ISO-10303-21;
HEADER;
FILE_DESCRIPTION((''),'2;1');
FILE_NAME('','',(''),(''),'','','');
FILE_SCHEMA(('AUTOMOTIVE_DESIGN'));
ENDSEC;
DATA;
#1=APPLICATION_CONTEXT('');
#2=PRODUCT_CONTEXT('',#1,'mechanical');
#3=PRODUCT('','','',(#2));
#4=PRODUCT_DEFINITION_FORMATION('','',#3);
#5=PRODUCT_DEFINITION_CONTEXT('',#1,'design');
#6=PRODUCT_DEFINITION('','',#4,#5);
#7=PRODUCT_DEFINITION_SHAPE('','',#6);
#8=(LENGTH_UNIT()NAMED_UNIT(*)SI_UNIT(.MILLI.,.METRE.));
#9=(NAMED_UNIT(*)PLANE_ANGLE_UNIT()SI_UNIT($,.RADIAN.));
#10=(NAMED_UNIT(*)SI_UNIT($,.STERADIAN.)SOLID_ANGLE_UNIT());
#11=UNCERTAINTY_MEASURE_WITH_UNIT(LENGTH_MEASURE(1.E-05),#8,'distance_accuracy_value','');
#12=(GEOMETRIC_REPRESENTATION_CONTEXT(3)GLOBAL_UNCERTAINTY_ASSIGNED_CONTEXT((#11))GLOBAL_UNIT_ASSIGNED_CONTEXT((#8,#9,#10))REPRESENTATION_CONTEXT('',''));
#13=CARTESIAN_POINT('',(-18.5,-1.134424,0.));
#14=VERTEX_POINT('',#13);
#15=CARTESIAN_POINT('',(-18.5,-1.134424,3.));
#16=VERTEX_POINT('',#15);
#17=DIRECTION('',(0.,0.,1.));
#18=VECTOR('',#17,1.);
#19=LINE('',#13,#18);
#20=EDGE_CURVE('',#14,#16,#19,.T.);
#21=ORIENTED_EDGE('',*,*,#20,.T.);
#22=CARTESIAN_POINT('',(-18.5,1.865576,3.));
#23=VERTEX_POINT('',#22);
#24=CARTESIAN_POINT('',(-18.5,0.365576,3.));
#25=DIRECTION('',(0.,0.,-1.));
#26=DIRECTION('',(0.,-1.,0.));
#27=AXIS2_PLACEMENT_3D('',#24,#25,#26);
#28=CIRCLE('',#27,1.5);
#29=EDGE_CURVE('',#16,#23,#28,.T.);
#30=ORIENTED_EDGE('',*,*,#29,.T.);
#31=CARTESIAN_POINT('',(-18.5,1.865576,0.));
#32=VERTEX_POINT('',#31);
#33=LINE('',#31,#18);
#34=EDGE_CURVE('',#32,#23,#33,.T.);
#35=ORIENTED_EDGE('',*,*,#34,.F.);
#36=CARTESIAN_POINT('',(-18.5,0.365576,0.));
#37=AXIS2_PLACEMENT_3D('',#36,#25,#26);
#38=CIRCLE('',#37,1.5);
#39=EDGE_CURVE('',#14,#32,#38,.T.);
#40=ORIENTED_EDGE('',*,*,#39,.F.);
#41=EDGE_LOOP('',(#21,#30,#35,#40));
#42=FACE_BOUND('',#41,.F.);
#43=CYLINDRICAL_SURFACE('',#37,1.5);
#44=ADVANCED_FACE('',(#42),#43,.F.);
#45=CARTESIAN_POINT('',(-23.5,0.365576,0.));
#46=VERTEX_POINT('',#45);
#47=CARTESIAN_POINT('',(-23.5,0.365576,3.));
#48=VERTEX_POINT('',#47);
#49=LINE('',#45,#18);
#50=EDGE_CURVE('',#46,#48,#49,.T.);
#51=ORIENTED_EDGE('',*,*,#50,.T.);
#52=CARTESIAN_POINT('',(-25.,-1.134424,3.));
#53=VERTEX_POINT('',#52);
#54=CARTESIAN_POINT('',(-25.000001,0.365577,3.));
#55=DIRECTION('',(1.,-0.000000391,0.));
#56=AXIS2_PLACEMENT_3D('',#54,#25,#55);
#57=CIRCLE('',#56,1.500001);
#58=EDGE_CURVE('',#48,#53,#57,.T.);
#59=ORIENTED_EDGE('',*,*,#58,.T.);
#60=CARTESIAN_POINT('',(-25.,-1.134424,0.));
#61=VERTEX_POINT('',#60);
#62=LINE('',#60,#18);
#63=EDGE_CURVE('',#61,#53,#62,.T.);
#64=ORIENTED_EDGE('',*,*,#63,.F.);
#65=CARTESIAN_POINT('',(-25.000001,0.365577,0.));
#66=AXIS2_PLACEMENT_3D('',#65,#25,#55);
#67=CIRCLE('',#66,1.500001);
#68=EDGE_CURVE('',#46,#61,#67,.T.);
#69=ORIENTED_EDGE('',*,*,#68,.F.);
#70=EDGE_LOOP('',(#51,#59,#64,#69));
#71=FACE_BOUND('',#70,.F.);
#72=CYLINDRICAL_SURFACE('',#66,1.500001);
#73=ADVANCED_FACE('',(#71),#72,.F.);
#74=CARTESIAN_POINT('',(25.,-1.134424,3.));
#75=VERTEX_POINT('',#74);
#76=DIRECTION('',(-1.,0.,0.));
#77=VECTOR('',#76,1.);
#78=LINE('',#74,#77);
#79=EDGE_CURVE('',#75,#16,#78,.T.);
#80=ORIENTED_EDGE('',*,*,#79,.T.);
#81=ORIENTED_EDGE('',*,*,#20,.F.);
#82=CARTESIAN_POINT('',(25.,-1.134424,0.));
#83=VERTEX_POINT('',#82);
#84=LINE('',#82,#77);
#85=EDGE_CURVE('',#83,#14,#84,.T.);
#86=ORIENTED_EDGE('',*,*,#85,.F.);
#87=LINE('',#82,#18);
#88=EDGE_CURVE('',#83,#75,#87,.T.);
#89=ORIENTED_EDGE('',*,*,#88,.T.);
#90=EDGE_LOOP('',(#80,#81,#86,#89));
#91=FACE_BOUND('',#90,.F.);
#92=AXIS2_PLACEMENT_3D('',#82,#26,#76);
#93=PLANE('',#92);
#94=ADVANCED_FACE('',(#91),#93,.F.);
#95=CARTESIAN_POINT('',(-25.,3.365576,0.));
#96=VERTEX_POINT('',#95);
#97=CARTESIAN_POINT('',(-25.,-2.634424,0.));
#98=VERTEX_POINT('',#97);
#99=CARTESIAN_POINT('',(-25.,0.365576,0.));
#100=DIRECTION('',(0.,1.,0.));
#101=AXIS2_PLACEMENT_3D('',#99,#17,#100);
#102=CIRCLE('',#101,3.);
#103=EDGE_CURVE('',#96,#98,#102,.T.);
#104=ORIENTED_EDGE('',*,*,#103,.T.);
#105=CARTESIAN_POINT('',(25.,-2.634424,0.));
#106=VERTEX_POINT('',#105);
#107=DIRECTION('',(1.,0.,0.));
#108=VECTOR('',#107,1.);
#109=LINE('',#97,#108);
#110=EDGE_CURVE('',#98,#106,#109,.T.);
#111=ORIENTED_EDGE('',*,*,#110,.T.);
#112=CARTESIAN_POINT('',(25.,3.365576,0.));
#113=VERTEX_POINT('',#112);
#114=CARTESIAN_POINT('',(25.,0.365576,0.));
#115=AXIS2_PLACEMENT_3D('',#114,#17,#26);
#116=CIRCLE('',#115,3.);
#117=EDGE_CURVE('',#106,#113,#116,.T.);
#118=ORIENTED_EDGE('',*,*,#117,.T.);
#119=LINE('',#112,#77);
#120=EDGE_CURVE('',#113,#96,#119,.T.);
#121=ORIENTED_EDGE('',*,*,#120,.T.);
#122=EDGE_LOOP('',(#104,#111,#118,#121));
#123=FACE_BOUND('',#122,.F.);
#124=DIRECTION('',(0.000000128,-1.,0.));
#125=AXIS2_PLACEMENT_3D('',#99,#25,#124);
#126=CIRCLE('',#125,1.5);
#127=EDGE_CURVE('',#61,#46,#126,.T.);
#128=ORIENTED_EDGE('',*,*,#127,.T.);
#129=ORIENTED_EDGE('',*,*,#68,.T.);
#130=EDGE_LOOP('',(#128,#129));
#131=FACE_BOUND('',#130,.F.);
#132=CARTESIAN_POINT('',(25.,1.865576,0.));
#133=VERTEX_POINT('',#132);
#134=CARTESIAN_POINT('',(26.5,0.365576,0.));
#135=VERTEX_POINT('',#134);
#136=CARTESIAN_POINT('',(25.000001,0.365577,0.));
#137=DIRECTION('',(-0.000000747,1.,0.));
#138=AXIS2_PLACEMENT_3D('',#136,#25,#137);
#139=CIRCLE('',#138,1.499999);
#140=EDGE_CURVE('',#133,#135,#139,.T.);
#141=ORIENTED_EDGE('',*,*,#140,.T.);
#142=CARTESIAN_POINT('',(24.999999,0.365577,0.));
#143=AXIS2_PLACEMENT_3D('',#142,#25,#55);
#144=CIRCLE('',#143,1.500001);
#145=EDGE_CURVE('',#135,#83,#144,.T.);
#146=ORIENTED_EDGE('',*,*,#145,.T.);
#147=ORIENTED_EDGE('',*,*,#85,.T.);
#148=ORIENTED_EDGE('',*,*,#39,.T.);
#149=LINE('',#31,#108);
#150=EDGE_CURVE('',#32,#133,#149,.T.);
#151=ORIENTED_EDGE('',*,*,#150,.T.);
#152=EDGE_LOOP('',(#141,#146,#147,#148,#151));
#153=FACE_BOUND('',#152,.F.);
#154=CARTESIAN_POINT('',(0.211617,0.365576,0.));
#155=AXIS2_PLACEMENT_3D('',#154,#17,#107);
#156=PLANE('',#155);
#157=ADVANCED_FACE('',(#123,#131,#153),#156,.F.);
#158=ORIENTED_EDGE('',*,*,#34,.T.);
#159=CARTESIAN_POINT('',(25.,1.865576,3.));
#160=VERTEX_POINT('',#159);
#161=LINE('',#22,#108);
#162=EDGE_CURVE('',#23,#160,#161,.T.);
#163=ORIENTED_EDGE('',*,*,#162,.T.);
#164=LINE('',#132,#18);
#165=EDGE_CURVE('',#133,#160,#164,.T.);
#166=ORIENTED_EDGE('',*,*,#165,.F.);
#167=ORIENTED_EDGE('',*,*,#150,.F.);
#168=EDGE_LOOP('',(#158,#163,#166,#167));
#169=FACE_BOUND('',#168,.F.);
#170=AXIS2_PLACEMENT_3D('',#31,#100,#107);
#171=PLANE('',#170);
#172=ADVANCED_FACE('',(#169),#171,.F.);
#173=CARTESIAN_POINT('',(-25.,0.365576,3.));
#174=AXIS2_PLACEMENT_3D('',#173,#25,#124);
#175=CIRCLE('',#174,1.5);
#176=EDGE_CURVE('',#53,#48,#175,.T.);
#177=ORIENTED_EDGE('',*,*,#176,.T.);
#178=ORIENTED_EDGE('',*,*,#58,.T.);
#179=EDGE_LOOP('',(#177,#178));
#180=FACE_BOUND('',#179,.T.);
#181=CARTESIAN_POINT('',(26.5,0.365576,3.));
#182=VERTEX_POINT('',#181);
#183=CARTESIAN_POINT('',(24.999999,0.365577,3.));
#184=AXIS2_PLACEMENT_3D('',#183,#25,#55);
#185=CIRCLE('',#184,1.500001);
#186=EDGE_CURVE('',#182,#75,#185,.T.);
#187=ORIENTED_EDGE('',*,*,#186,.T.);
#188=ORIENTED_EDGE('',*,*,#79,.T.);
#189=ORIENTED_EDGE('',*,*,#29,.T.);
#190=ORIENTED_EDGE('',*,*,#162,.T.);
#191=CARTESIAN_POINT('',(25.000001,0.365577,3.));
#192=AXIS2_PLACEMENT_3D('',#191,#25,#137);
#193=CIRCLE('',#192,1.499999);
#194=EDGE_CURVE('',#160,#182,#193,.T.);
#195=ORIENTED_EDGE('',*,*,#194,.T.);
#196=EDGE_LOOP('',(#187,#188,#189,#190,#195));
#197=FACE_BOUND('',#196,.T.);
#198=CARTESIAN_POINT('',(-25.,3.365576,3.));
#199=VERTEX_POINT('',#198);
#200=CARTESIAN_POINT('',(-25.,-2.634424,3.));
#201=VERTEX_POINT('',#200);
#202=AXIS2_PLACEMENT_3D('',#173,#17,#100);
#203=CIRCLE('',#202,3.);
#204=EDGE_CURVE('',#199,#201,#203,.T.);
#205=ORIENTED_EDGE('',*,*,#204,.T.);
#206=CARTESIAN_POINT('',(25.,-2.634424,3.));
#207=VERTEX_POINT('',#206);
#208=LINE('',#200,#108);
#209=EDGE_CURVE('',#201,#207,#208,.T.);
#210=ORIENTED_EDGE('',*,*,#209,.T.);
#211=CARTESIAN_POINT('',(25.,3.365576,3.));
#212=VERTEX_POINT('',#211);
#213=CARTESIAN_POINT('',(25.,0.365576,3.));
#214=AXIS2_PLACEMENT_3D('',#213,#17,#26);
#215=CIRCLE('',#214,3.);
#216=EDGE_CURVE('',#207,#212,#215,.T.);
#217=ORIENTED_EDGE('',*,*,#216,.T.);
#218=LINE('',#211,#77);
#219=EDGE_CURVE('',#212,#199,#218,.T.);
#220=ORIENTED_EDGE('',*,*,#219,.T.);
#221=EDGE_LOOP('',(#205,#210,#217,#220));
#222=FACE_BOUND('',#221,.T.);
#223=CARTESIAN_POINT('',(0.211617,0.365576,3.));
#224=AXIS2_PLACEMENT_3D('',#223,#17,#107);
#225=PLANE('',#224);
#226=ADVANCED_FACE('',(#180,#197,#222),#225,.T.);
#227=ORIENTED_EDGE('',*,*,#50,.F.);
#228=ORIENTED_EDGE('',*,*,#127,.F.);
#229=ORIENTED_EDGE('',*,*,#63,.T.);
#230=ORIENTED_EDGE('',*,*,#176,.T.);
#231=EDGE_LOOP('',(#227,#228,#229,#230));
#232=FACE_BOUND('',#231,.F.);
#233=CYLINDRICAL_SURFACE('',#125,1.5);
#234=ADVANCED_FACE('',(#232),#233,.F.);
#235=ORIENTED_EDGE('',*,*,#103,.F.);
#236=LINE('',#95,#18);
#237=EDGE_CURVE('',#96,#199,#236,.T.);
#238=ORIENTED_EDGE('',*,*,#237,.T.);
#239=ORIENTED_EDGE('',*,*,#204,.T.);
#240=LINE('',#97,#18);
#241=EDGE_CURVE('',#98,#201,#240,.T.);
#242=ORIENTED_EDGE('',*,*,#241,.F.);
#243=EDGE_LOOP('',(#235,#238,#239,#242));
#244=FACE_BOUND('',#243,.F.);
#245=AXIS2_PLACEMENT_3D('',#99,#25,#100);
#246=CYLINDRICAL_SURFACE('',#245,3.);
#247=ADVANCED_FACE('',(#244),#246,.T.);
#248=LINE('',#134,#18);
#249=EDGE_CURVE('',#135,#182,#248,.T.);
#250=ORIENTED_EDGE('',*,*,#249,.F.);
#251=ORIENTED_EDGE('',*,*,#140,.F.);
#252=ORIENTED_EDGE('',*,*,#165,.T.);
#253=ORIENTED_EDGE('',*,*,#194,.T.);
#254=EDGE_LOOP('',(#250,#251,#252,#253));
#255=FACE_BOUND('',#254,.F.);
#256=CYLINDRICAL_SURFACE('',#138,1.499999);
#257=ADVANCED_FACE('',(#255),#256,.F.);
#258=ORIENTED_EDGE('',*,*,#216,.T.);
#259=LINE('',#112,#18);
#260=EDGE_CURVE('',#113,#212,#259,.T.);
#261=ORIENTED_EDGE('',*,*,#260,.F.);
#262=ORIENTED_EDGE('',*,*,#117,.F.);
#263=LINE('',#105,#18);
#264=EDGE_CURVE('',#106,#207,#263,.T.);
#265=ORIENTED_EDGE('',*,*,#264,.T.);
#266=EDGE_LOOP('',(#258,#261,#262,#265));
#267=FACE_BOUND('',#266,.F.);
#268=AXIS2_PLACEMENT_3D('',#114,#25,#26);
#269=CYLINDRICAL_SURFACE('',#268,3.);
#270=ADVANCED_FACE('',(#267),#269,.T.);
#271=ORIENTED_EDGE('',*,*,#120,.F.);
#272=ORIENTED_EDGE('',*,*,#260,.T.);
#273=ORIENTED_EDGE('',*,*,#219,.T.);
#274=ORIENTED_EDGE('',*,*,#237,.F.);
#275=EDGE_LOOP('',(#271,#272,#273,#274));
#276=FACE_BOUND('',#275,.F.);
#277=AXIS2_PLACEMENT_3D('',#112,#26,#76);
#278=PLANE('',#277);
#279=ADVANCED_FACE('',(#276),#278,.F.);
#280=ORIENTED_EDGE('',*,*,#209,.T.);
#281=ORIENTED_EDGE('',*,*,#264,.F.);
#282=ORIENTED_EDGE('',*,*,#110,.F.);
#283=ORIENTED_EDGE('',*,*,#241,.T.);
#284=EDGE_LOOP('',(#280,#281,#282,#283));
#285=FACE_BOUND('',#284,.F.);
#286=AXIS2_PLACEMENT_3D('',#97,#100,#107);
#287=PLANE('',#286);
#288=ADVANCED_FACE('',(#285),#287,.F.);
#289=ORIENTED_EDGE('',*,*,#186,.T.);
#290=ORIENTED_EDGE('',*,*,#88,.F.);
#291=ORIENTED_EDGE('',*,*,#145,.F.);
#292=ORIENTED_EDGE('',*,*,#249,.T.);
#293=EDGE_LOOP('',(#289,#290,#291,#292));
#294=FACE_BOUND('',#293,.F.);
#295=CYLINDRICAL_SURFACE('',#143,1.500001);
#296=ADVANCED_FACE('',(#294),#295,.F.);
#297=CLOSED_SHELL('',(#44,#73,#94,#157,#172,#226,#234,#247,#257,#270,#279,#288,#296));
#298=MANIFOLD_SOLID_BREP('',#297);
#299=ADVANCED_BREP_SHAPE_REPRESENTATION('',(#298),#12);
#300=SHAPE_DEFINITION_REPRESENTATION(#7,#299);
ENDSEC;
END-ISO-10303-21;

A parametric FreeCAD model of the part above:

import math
import FreeCAD as App
import Part
import Sketcher

V = App.Vector

doc = App.newDocument("Part")
body = doc.addObject("PartDesign::Body", "Body")

# Sketch on XY plane
sketch1 = doc.addObject("Sketcher::SketchObject", "Sketch")
body.addObject(sketch1)
sketch1.AttachmentSupport = (doc.XY_Plane, [""])
sketch1.MapMode = "FlatFace"
sketch1.addGeometry(Part.LineSegment(V(25, 3.365576, 0), V(-25, 3.365576, 0)), False)
sketch1.addGeometry(Part.ArcOfCircle(Part.Circle(V(-25, 0.365576, 0), V(0, 0, 1), 3), math.radians(90), math.radians(270)), False)
sketch1.addGeometry(Part.LineSegment(V(-25, -2.634424, 0), V(25, -2.634424, 0)), False)
sketch1.addGeometry(Part.ArcOfCircle(Part.Circle(V(25, 0.365576, 0), V(0, 0, 1), 3), math.radians(-90), math.radians(90)), False)
sketch1.addGeometry(Part.ArcOfCircle(Part.Circle(V(-25, 0.365576, 0), V(0, 0, 1), 1.5), math.radians(-0.000007), math.radians(270.000007)), False)
sketch1.addGeometry(Part.ArcOfCircle(Part.Circle(V(-25.000001, 0.365577, 0), V(0, 0, 1), 1.500001), math.radians(-89.999978), math.radians(-0.000022)), False)
sketch1.addGeometry(Part.LineSegment(V(25, -1.134424, 0), V(-18.5, -1.134424, 0)), False)
sketch1.addGeometry(Part.ArcOfCircle(Part.Circle(V(-18.5, 0.365576, 0), V(0, 0, 1), 1.5), math.radians(90), math.radians(270)), False)
sketch1.addGeometry(Part.LineSegment(V(-18.5, 1.865576, 0), V(25, 1.865576, 0)), False)
sketch1.addGeometry(Part.ArcOfCircle(Part.Circle(V(25.000001, 0.365577, 0), V(0, 0, 1), 1.499999), math.radians(-0.000043), math.radians(90.000043)), False)
sketch1.addGeometry(Part.ArcOfCircle(Part.Circle(V(24.999999, 0.365577, 0), V(0, 0, 1), 1.500001), math.radians(-89.999978), math.radians(-0.000022)), False)
sketch1.addConstraint(Sketcher.Constraint("Tangent", 0, 2, 1, 1))
sketch1.addConstraint(Sketcher.Constraint("Tangent", 1, 2, 2, 1))
sketch1.addConstraint(Sketcher.Constraint("Tangent", 2, 2, 3, 1))
sketch1.addConstraint(Sketcher.Constraint("Tangent", 3, 2, 0, 1))
sketch1.addConstraint(Sketcher.Constraint("Tangent", 4, 1, 5, 2))
sketch1.addConstraint(Sketcher.Constraint("Coincident", 5, 1, 4, 2))
sketch1.addConstraint(Sketcher.Constraint("Tangent", 6, 2, 7, 2))
sketch1.addConstraint(Sketcher.Constraint("Tangent", 7, 1, 8, 1))
sketch1.addConstraint(Sketcher.Constraint("Tangent", 8, 2, 9, 2))
sketch1.addConstraint(Sketcher.Constraint("Tangent", 9, 1, 10, 2))
sketch1.addConstraint(Sketcher.Constraint("Tangent", 10, 1, 6, 1))
sketch1.addConstraint(Sketcher.Constraint("Horizontal", 0))
sketch1.addConstraint(Sketcher.Constraint("Horizontal", 2))
sketch1.addConstraint(Sketcher.Constraint("Horizontal", 6))
sketch1.addConstraint(Sketcher.Constraint("Horizontal", 8))
sketch1.addConstraint(Sketcher.Constraint("Coincident", 4, 3, 1, 3))
sketch1.addConstraint(Sketcher.Constraint("Coincident", 9, 3, 3, 3))
sketch1.addConstraint(Sketcher.Constraint("Equal", 5, 7))
sketch1.addConstraint(Sketcher.Constraint("Equal", 7, 9))
sketch1.addConstraint(Sketcher.Constraint("Horizontal", 10, 3, 4, 1))
sketch1.addConstraint(Sketcher.Constraint("Horizontal", 4, 1, 9, 1))
sketch1.addConstraint(Sketcher.Constraint("Vertical", 1, 2, 5, 1))
sketch1.addConstraint(Sketcher.Constraint("Radius", 1, 3.0))
sketch1.addConstraint(Sketcher.Constraint("Radius", 4, 1.5))
sketch1.addConstraint(Sketcher.Constraint("DistanceX", 0, 2, 0, 1, 50.0))
sketch1.addConstraint(Sketcher.Constraint("DistanceX", 6, 2, 6, 1, 43.5))
sketch1.addConstraint(Sketcher.Constraint("DistanceX", 1, 3, -1, 1, 25.0))
sketch1.addConstraint(Sketcher.Constraint("DistanceY", -1, 1, 1, 3, 0.365576))
pad1 = doc.addObject("PartDesign::Pad", "Pad")
body.addObject(pad1)
pad1.Profile = sketch1
pad1.Length = 3

doc.recompute()
